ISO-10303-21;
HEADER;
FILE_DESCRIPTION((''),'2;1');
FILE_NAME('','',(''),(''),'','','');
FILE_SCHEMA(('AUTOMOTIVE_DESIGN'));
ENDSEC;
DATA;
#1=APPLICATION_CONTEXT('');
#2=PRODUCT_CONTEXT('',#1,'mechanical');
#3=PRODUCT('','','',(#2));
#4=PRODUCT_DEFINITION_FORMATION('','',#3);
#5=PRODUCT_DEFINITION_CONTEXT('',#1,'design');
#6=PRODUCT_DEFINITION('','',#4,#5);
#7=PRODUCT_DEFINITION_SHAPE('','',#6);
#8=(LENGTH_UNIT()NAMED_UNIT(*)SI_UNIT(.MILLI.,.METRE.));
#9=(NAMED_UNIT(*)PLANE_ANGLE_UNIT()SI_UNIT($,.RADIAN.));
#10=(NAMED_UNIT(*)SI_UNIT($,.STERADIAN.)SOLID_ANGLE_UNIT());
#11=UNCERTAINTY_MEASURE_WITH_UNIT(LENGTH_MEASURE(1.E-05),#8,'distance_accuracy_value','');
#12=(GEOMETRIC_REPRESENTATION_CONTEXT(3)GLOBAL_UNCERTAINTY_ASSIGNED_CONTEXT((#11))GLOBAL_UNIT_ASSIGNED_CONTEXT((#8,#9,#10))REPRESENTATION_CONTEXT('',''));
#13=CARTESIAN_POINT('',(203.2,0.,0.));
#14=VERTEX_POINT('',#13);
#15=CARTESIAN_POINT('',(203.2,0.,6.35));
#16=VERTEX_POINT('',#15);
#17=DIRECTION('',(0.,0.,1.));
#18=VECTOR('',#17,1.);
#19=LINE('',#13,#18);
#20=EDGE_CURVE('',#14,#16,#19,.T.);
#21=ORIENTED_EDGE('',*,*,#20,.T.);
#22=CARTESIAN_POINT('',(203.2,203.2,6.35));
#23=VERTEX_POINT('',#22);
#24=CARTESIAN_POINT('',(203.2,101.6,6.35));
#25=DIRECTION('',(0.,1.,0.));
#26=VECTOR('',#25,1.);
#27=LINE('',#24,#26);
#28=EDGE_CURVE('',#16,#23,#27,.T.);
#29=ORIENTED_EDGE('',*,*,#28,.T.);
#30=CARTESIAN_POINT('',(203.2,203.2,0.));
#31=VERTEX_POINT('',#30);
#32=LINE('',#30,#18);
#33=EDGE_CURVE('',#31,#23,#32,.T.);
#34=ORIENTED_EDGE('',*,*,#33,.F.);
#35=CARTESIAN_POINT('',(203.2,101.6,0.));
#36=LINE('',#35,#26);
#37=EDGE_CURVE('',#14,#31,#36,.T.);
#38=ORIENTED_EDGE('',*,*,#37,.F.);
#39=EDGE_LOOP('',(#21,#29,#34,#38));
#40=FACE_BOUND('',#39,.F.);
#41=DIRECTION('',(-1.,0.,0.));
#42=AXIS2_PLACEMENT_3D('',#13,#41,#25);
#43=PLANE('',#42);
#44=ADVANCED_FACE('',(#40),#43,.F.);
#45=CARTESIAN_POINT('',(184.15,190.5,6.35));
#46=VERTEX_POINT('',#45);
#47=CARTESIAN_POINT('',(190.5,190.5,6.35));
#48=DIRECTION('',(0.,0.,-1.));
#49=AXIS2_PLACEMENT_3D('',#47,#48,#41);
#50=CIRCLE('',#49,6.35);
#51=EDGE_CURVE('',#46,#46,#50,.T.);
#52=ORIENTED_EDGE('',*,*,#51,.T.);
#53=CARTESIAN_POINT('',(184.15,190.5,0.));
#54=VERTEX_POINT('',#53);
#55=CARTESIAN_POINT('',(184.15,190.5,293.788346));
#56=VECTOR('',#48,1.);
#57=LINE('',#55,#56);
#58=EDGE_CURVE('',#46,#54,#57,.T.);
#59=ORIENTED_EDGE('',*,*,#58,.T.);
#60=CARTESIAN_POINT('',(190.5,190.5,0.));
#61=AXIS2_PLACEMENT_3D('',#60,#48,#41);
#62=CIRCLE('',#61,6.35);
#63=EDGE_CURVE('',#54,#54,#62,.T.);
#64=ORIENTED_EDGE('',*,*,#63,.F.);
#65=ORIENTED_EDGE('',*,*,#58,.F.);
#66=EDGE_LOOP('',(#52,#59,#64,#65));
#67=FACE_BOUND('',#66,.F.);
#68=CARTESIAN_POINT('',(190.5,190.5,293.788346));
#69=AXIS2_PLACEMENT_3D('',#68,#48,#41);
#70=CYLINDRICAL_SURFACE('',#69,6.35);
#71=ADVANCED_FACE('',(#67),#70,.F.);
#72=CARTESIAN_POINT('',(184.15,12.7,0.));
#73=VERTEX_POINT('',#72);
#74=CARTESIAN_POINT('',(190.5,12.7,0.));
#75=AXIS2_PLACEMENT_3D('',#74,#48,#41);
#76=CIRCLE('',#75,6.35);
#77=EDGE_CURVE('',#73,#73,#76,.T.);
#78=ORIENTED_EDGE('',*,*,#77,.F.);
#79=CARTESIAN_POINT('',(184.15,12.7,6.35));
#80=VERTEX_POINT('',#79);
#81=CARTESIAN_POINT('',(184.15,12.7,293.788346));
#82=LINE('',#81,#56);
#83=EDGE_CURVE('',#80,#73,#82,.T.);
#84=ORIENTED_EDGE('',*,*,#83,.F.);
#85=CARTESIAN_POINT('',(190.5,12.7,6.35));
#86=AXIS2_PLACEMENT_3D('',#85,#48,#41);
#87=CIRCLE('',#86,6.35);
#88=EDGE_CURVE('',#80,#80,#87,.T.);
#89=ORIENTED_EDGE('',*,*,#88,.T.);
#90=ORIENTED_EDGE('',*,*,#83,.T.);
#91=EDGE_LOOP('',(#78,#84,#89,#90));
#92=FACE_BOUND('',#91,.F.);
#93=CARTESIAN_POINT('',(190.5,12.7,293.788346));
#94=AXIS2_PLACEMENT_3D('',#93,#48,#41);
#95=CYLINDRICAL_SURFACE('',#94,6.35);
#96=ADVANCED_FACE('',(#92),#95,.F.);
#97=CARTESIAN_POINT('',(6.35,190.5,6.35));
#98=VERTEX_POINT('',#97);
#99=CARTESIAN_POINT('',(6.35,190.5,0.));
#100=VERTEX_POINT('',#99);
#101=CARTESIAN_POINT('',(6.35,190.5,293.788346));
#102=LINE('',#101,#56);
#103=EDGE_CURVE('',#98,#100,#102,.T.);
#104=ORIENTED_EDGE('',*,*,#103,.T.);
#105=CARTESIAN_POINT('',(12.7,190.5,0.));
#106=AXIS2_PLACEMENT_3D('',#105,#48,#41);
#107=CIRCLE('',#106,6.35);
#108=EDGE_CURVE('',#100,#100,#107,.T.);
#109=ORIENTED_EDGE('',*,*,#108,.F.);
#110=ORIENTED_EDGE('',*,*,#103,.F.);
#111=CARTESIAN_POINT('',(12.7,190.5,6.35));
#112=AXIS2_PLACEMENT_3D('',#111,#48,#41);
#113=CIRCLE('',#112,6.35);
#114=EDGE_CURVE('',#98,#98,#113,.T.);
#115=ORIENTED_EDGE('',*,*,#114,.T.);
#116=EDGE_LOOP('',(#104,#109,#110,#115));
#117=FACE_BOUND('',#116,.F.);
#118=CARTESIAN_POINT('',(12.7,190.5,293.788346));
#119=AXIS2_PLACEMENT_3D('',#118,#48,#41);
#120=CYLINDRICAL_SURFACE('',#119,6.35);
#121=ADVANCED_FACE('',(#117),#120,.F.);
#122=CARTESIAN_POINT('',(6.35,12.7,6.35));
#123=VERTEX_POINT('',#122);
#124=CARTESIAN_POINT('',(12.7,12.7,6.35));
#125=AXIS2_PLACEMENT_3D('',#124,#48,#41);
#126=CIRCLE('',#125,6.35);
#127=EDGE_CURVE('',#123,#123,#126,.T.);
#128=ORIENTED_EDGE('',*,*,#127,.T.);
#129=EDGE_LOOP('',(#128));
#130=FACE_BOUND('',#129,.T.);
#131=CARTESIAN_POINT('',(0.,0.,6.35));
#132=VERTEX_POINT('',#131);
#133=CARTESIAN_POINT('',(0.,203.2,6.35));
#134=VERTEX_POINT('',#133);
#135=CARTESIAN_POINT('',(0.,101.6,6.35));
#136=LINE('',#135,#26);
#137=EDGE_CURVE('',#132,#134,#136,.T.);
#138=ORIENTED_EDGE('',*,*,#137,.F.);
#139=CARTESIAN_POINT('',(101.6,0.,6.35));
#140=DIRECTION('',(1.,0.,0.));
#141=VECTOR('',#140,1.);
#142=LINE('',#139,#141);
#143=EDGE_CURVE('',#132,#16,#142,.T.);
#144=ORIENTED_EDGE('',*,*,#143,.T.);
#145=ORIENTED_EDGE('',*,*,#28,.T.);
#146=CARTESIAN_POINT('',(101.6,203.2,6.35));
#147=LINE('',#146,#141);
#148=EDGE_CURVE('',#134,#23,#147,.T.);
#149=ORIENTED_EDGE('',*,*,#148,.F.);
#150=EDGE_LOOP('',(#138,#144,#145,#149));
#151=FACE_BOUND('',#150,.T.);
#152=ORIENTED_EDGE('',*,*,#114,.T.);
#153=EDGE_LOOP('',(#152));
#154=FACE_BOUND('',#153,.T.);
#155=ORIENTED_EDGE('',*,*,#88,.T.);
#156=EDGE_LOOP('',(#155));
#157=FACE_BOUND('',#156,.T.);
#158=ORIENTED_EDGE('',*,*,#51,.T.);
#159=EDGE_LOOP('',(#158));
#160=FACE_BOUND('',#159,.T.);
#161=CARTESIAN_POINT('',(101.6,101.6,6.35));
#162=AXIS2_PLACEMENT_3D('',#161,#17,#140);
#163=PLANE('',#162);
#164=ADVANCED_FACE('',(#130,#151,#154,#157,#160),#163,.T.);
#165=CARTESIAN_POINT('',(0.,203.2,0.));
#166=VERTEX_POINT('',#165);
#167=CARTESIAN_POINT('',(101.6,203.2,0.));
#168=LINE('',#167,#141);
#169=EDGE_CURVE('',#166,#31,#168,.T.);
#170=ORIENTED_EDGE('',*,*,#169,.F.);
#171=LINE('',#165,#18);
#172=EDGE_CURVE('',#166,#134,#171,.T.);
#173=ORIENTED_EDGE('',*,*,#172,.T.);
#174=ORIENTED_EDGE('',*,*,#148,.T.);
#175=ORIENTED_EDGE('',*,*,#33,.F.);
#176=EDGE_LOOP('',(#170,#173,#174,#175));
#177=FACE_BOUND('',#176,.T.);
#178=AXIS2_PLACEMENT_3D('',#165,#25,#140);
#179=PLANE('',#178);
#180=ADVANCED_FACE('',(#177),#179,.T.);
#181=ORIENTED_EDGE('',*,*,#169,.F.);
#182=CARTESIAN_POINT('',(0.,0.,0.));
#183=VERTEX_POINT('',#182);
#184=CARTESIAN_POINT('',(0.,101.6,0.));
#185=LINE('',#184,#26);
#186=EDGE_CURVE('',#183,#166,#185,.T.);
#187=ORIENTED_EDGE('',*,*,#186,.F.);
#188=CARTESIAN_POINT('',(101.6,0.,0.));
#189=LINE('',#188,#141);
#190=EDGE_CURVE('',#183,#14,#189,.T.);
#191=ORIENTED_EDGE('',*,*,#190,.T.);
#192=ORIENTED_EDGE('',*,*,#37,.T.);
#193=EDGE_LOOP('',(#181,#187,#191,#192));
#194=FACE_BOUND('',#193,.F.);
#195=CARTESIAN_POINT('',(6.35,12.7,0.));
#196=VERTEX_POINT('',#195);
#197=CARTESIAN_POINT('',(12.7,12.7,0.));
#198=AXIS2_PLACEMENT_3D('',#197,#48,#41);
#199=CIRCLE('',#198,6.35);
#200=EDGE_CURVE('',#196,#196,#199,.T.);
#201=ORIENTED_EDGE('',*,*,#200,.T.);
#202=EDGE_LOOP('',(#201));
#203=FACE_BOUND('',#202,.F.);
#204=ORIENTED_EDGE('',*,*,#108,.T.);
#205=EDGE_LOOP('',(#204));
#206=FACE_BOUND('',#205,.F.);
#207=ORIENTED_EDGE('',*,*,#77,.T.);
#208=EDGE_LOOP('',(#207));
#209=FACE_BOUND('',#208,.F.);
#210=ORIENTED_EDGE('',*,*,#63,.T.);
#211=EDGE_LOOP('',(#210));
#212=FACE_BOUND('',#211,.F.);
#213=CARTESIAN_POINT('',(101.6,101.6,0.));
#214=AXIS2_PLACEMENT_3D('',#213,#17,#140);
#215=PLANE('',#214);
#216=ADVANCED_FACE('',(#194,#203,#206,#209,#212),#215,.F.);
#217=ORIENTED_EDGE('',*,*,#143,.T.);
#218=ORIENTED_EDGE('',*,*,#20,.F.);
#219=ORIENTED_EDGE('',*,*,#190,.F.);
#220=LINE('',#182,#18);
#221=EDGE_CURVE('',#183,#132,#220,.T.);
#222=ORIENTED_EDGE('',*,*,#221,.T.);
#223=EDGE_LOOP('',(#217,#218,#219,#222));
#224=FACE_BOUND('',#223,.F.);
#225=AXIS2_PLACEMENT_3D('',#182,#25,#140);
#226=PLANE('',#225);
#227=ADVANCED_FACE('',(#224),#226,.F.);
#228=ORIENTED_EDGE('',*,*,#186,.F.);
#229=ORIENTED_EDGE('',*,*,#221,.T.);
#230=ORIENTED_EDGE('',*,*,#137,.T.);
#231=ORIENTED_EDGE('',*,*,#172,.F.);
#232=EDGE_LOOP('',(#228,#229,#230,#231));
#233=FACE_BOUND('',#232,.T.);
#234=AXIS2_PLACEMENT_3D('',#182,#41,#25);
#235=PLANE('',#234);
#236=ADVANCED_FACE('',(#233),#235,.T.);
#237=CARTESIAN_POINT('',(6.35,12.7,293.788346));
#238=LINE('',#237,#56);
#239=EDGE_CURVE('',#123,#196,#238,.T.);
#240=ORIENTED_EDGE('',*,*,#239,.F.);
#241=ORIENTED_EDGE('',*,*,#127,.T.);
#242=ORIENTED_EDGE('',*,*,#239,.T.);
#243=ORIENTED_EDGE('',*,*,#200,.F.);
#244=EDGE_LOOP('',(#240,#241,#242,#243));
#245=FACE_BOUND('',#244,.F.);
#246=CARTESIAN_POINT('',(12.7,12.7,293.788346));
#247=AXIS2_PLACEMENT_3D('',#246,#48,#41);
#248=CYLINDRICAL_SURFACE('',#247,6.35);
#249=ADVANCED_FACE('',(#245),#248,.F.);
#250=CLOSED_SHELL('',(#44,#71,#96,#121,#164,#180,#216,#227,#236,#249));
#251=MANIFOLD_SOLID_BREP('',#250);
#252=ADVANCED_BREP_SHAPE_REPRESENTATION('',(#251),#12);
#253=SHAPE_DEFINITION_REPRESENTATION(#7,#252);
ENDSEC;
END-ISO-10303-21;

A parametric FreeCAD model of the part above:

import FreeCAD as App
import Part
import Sketcher
from FreeCAD import Vector
Q = App.Units.Quantity

doc = App.newDocument("Part")
body = doc.addObject("PartDesign::Body", "Body")

sketch1 = doc.addObject("Sketcher::SketchObject", "Sketch")
body.addObject(sketch1)
sketch1.AttachmentSupport = (doc.XY_Plane, [""])
sketch1.MapMode = "FlatFace"
sketch1.addGeometry([
    Part.LineSegment(Vector(0, 203, 0), Vector(0, 0, 0)),
    Part.LineSegment(Vector(0, 0, 0), Vector(203, 0, 0)),
    Part.LineSegment(Vector(203, 0, 0), Vector(203, 203, 0)),
    Part.LineSegment(Vector(203, 203, 0), Vector(0, 203, 0)),
], False)
sketch1.addConstraint([
    Sketcher.Constraint("Coincident", 0, 2, 1, 1),
    Sketcher.Constraint("Coincident", 1, 2, 2, 1),
    Sketcher.Constraint("Coincident", 2, 2, 3, 1),
    Sketcher.Constraint("Coincident", 3, 2, 0, 1),
    Sketcher.Constraint("Vertical", 0),
    Sketcher.Constraint("Horizontal", 1),
    Sketcher.Constraint("Vertical", 2),
    Sketcher.Constraint("Horizontal", 3),
    Sketcher.Constraint("Coincident", 0, 2, -1, 1),
    Sketcher.Constraint("Equal", 3, 0),
    Sketcher.Constraint("DistanceX", 1, 1, 1, 2, Q("8 in")),
])
pad1 = doc.addObject("PartDesign::Pad", "Pad")
body.addObject(pad1)
pad1.Profile = sketch1
pad1.Length = Q("0.25 in")

sketch2 = doc.addObject("Sketcher::SketchObject", "Sketch001")
body.addObject(sketch2)
sketch2.AttachmentSupport = (doc.XY_Plane, [""])
sketch2.MapMode = "FlatFace"
sketch2.AttachmentOffset = App.Placement(Vector(0, 0, 0.25 * 25.4), App.Rotation())
sketch2.addGeometry([
    Part.Circle(Vector(13, 190, 0), Vector(0, 0, 1), 6),
    Part.Circle(Vector(13, 13, 0), Vector(0, 0, 1), 6),
    Part.Circle(Vector(190, 13, 0), Vector(0, 0, 1), 6),
    Part.Circle(Vector(190, 190, 0), Vector(0, 0, 1), 6),
], False)
sketch2.addConstraint([
    Sketcher.Constraint("Equal", 0, 1),
    Sketcher.Constraint("Equal", 1, 2),
    Sketcher.Constraint("Equal", 2, 3),
    Sketcher.Constraint("Horizontal", 1, 3, 2, 3),
    Sketcher.Constraint("Horizontal", 0, 3, 3, 3),
    Sketcher.Constraint("Vertical", 0, 3, 1, 3),
    Sketcher.Constraint("Vertical", 2, 3, 3, 3),
    Sketcher.Constraint("Diameter", 0, Q("0.5 in")),
    Sketcher.Constraint("DistanceY", 1, 3, 0, 3, Q("7 in")),
    Sketcher.Constraint("DistanceX", 1, 3, 2, 3, Q("7 in")),
    Sketcher.Constraint("DistanceX", -1, 1, 0, 3, Q("0.5 in")),
    Sketcher.Constraint("DistanceY", -1, 1, 0, 3, Q("7.5 in")),
])
doc.recompute()
hole = doc.addObject("PartDesign::Hole", "Hole")
body.addObject(hole)
hole.Profile = sketch2
hole.ThreadType = "None"
hole.Diameter = Q("0.5 in")
hole.DepthType = "ThroughAll"

doc.recompute()
